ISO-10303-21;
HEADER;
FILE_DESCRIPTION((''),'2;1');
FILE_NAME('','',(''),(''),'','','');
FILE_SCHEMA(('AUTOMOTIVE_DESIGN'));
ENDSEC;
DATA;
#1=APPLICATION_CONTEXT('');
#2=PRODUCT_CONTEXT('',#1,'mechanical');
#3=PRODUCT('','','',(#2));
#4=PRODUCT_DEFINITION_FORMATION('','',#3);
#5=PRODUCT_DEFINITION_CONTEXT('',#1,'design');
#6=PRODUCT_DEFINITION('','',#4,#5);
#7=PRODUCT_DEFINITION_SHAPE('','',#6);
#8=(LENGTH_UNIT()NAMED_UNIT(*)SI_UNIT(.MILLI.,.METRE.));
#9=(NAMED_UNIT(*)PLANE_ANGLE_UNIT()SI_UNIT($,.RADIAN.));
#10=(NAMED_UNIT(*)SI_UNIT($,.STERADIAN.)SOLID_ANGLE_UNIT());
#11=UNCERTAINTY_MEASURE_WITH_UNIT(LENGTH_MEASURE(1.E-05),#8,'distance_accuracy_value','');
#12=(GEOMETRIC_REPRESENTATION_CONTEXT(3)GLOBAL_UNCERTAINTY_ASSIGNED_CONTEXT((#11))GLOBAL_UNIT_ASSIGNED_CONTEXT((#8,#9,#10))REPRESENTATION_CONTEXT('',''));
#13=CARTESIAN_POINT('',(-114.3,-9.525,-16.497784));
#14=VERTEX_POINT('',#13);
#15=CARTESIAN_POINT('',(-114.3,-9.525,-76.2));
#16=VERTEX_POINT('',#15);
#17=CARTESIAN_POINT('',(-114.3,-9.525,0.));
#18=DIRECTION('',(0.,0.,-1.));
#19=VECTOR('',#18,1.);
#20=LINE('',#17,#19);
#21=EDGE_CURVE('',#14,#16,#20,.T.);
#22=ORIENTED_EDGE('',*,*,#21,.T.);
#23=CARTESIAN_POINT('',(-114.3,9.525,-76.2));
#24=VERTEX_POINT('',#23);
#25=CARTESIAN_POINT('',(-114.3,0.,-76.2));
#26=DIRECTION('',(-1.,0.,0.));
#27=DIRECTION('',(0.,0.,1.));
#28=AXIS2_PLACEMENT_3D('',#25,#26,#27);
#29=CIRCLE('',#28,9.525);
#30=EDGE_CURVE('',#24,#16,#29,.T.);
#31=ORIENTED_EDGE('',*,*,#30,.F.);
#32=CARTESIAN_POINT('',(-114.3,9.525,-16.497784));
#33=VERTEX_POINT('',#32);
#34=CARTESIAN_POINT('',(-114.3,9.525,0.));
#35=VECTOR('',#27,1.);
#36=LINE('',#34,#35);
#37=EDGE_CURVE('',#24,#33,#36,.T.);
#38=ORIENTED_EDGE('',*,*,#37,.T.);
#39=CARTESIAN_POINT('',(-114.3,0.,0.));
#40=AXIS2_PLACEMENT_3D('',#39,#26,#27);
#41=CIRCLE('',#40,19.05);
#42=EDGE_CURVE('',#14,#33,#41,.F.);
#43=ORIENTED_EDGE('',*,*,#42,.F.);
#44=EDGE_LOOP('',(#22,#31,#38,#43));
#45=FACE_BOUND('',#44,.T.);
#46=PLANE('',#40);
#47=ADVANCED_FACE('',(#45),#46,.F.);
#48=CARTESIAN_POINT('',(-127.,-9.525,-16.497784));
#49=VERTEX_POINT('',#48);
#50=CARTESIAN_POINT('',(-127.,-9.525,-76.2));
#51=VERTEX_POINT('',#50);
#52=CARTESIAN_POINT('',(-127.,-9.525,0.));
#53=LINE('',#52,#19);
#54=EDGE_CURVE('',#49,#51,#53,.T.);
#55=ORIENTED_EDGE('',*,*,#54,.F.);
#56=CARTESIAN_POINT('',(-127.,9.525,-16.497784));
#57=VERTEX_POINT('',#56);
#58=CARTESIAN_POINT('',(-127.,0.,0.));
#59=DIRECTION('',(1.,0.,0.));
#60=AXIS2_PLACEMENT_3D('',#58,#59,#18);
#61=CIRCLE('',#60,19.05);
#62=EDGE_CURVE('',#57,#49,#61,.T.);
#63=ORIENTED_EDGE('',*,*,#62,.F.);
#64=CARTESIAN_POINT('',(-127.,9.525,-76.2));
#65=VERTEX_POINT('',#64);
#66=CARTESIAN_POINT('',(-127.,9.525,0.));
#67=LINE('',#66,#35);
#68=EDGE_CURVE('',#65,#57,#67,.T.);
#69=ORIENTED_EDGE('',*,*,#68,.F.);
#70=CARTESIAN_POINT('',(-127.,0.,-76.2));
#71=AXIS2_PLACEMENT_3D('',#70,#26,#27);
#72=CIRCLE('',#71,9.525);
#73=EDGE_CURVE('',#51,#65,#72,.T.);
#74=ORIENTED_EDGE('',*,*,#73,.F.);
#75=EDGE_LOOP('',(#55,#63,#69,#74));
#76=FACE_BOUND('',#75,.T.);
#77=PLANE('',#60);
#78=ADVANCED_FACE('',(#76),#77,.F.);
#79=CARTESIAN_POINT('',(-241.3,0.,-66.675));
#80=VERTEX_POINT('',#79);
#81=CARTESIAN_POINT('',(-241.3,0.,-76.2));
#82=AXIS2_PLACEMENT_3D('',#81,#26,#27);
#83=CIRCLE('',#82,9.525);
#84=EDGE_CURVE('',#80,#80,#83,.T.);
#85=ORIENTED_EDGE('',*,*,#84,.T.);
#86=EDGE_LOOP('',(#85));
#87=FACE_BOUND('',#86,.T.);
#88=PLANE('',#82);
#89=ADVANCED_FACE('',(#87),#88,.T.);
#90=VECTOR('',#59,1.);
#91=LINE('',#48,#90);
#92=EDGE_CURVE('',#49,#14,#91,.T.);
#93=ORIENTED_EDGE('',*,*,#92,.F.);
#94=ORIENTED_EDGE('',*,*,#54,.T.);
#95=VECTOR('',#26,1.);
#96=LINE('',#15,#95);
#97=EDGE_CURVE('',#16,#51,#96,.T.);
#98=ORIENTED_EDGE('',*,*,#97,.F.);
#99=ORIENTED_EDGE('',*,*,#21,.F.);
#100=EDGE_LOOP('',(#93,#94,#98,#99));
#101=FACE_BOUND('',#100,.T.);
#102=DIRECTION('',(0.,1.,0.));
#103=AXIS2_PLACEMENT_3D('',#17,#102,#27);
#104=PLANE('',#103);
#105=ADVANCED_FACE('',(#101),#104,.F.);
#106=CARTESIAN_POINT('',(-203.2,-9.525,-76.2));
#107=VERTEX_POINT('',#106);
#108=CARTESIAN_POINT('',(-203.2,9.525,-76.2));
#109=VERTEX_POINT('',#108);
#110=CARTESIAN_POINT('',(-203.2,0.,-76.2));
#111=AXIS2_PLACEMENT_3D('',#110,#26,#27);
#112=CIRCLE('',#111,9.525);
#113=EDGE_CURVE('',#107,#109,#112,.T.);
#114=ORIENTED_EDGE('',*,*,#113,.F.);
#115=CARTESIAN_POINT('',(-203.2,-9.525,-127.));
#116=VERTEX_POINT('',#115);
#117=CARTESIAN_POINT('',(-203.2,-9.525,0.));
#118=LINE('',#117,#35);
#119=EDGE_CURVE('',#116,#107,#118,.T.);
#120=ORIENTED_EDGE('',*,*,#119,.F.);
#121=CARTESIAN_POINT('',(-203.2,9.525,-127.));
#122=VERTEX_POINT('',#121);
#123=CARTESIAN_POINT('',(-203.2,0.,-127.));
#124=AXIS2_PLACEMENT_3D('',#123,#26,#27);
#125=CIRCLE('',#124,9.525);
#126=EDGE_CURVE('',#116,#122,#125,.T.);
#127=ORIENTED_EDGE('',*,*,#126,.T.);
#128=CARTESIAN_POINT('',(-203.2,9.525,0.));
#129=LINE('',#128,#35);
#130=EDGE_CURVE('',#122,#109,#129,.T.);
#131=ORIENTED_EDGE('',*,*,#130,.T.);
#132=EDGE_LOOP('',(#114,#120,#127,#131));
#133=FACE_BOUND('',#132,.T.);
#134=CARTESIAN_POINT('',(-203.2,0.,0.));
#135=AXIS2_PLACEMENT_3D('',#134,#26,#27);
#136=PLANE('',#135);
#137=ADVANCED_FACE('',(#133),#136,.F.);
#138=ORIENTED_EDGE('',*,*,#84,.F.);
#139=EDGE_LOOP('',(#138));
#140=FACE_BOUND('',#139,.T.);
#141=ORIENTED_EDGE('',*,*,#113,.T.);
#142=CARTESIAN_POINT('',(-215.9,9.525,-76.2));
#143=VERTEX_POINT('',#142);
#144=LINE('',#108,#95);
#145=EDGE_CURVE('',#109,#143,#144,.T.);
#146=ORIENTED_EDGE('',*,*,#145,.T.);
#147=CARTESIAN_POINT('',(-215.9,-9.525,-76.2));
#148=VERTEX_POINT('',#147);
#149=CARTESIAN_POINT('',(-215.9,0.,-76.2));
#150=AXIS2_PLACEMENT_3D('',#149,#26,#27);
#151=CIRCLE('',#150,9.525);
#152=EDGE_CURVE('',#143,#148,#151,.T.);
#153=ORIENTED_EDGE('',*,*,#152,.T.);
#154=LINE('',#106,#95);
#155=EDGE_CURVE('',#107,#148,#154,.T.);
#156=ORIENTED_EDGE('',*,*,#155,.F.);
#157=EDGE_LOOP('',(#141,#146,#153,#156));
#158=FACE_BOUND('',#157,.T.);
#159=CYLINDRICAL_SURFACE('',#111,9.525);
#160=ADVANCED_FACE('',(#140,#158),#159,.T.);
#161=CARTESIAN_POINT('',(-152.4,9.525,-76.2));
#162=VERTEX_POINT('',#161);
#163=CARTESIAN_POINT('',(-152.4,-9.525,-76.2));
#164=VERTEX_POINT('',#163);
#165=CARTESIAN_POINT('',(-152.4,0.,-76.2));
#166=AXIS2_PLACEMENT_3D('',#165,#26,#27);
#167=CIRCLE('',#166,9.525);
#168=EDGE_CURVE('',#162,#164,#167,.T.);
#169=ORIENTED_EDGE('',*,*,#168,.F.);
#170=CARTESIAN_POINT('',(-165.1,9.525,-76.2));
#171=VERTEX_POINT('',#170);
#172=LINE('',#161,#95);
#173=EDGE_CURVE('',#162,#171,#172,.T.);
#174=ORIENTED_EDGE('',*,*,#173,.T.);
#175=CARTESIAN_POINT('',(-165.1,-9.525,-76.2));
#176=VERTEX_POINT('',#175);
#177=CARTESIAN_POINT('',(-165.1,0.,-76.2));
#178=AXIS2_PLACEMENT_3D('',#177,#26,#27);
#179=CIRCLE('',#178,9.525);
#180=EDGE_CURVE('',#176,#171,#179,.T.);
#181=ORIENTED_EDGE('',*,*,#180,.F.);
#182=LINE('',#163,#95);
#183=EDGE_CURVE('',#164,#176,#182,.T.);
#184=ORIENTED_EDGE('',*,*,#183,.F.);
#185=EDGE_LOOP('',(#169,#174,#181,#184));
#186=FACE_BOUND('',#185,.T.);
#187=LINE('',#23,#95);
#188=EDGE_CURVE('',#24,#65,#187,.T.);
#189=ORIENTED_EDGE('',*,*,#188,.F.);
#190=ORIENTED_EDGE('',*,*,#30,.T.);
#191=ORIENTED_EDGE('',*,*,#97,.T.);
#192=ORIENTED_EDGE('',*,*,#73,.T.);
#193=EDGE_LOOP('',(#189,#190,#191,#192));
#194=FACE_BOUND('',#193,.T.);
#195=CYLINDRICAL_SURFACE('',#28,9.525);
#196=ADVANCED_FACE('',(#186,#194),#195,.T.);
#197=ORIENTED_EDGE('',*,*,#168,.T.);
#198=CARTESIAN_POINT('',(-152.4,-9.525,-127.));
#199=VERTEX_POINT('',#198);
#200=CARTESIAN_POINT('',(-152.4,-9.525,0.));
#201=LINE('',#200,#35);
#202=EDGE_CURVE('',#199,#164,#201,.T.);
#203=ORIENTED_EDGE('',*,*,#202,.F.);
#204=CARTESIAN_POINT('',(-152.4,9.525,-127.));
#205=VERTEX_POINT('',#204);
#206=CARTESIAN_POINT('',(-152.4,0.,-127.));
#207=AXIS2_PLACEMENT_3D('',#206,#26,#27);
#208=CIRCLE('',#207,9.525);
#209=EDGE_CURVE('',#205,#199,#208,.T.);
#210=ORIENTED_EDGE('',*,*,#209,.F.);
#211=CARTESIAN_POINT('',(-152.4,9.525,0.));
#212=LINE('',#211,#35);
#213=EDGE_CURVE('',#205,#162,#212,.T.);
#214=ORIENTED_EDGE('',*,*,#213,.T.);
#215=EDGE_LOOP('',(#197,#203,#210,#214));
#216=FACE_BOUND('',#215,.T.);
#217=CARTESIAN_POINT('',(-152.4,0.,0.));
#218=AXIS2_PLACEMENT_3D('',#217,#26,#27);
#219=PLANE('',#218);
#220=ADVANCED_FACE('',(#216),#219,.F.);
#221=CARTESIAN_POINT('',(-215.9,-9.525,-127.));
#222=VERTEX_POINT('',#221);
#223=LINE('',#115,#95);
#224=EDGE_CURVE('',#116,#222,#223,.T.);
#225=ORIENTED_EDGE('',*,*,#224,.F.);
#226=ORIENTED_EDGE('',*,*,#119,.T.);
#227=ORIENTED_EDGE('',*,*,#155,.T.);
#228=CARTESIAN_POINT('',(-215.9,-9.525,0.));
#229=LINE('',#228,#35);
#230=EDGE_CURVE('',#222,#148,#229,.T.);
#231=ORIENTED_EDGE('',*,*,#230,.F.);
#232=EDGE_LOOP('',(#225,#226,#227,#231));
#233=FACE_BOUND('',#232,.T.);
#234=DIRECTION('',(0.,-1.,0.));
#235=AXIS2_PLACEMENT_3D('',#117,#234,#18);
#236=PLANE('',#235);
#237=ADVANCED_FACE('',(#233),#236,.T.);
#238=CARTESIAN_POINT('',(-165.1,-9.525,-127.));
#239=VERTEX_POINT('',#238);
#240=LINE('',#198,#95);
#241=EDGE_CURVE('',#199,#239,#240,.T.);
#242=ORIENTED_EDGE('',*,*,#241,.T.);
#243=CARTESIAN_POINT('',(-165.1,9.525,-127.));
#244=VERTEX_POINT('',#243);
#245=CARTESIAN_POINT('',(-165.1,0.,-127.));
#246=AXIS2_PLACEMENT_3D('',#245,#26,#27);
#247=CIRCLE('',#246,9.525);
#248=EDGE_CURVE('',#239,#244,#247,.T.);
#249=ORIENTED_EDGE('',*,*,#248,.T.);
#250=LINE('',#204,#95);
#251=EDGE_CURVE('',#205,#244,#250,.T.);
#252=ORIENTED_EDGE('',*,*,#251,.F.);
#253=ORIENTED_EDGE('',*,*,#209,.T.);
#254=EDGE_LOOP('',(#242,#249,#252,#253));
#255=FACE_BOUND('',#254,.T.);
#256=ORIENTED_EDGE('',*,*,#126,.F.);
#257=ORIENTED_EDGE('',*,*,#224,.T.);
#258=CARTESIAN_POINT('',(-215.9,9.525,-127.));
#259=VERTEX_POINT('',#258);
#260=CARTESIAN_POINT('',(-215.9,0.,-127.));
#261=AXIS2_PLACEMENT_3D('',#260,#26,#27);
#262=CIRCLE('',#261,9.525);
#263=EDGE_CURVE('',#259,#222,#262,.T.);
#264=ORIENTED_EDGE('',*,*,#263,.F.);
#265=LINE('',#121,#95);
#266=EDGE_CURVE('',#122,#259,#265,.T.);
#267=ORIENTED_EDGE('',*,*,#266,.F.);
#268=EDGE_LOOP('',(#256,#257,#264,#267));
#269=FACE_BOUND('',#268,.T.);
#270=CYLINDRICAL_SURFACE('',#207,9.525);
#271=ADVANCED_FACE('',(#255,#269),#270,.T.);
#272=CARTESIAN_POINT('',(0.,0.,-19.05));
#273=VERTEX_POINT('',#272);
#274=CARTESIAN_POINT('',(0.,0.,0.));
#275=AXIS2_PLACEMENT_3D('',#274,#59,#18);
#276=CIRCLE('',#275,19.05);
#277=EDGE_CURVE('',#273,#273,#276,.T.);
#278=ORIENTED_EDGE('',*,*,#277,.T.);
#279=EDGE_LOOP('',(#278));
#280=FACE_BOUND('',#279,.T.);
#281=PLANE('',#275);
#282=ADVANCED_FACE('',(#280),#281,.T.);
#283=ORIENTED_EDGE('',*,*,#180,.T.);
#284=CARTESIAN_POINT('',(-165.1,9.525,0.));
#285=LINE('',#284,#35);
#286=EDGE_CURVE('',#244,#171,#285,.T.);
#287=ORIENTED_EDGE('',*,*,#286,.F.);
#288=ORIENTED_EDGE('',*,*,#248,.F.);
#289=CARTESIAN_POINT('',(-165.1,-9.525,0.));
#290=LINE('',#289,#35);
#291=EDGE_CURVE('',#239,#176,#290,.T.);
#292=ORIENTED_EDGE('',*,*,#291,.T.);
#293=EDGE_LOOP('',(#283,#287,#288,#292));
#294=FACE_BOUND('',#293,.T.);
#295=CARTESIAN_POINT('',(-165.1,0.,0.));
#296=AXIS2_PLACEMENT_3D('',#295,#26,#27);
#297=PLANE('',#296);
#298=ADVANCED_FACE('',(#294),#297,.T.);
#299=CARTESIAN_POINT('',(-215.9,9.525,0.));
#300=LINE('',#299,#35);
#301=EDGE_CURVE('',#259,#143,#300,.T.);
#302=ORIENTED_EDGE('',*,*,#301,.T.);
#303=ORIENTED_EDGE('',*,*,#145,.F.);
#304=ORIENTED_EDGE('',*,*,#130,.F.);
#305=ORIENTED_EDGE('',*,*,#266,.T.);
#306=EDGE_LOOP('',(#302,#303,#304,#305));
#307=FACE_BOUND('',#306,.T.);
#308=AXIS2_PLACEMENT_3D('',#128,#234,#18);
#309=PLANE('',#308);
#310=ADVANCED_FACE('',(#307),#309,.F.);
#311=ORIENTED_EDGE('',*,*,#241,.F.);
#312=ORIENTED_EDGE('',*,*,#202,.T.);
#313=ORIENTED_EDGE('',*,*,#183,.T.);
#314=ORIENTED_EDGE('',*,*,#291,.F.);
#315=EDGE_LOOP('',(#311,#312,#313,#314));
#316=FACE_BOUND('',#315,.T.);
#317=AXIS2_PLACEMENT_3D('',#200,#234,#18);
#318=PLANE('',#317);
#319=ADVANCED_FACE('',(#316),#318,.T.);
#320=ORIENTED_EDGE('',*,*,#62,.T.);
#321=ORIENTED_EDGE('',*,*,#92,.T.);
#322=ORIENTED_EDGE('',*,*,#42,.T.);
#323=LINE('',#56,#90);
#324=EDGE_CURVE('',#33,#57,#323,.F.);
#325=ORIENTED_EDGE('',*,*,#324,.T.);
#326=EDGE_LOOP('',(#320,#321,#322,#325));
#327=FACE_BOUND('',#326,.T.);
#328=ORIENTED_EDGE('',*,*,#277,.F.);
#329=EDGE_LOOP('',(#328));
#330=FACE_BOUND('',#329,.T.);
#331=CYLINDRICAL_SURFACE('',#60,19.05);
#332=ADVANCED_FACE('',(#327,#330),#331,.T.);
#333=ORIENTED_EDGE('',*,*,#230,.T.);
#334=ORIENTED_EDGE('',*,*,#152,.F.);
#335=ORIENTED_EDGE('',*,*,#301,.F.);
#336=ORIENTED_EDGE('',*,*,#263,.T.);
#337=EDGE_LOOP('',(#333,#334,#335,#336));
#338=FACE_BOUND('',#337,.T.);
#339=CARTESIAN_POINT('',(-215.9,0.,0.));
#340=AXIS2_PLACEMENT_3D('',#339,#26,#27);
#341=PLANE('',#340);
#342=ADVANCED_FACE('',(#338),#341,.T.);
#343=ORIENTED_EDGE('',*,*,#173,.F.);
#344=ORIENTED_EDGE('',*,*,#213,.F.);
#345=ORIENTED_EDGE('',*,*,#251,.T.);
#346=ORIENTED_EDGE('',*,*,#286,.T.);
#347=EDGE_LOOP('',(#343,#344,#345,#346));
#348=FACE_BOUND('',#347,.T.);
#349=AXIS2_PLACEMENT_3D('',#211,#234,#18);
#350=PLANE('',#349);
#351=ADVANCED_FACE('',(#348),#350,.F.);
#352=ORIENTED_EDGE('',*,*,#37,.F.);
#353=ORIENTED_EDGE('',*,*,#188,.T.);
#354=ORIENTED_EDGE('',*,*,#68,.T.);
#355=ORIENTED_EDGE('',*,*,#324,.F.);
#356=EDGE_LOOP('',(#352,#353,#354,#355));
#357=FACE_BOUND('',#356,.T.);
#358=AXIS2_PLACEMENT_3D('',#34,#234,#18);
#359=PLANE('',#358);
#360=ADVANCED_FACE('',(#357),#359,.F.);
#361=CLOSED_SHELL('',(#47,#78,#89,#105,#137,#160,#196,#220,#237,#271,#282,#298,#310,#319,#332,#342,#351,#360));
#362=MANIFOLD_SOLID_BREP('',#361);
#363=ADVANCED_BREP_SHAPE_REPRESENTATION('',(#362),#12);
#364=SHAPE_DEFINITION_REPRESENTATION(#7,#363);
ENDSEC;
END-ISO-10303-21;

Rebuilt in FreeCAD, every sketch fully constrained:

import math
import FreeCAD as App
import Part
import Sketcher
from FreeCAD import Vector
Q = App.Units.Quantity

doc = App.newDocument("Part")
params = doc.addObject("Spreadsheet::Sheet", "Params")
for row, (alias, value) in enumerate([
    ("sketch1_diameter", "1.5 in"),
    ("pad1_length", "5 in"),
    ("sketch2_radius", "0.75 in"),
    ("sketch2_radius2", "0.375 in"),
    ("pad2_length", "0.5 in"),
    ("sketch3_diameter", "0.75 in"),
    ("pad3_length", "1.5 in"),
    ("sketch4_height", "2 in"),
    ("sketch4_radius", "0.375 in"),
    ("pad4_length", "0.5 in"),
    ("sketch5_diameter", "0.75 in"),
    ("pad5_length", "2 in"),
    ("sketch6_height", "2 in"),
    ("sketch6_radius", "0.375 in"),
    ("pad6_length", "0.5 in"),
    ("sketch7_diameter", "0.75 in"),
    ("pad7_length", "1 in"),
], start=1):
    params.set(f"A{row}", alias)
    params.set(f"B{row}", "=" + value)
    params.setAlias(f"B{row}", alias)

body = doc.addObject("PartDesign::Body", "Body")

# Sketch on YZ plane
sketch1 = body.newObject("Sketcher::SketchObject", "Sketch")
sketch1.AttachmentSupport = (doc.getObject("YZ_Plane"), [""])
sketch1.MapMode = "FlatFace"
sketch1.addGeometry(Part.Circle(Vector(0, 0, 0), Vector(0, 0, 1), 19), False)
sketch1.addConstraint(Sketcher.Constraint("Coincident", 0, 3, -1, 1))
sketch1.addConstraint(Sketcher.Constraint("Diameter", 0, Q("1.5 in")))
sketch1.setExpression("Constraints[1]", "Params.sketch1_diameter")
pad1 = body.newObject("PartDesign::Pad", "Pad")
pad1.Profile = sketch1
pad1.setExpression("Length", "Params.pad1_length")
pad1.Reversed = True

# Sketch on YZ plane
sketch2 = body.newObject("Sketcher::SketchObject", "Sketch001")
sketch2.AttachmentSupport = (doc.getObject("YZ_Plane"), [""])
sketch2.MapMode = "FlatFace"
sketch2.AttachmentOffset = App.Placement(Vector(0, 0, -4.5 * 25.4), App.Rotation())
sketch2.addGeometry(Part.LineSegment(Vector(10, -16, 0), Vector(10, -76, 0)), False)
sketch2.addGeometry(Part.ArcOfCircle(Part.Circle(Vector(0, -76, 0), Vector(0, 0, 1), 10), math.radians(180), math.radians(360)), False)
sketch2.addGeometry(Part.LineSegment(Vector(-10, -76, 0), Vector(-10, -16, 0)), False)
sketch2.addGeometry(Part.ArcOfCircle(Part.Circle(Vector(0, 0, 0), Vector(0, 0, 1), 19), math.radians(-60), math.radians(240)), False)
sketch2.addConstraint(Sketcher.Constraint("Tangent", 0, 2, 1, 2))
sketch2.addConstraint(Sketcher.Constraint("Tangent", 1, 1, 2, 1))
sketch2.addConstraint(Sketcher.Constraint("Coincident", 2, 2, 3, 2))
sketch2.addConstraint(Sketcher.Constraint("Coincident", 3, 1, 0, 1))
sketch2.addConstraint(Sketcher.Constraint("Vertical", 0))
sketch2.addConstraint(Sketcher.Constraint("Vertical", 2))
sketch2.addConstraint(Sketcher.Constraint("Coincident", 3, 3, -1, 1))
sketch2.addConstraint(Sketcher.Constraint("PointOnObject", 1, 3, -2))
sketch2.addConstraint(Sketcher.Constraint("Radius", 3, Q("0.75 in")))
sketch2.addConstraint(Sketcher.Constraint("DistanceY", 1, 3, -1, 1, Q("3 in")))
sketch2.addConstraint(Sketcher.Constraint("Radius", 1, Q("0.375 in")))
sketch2.setExpression("Constraints[8]", "Params.sketch2_radius")
sketch2.setExpression("Constraints[10]", "Params.sketch2_radius2")
pad2 = body.newObject("PartDesign::Pad", "Pad001")
pad2.Profile = sketch2
pad2.setExpression("Length", "Params.pad2_length")
pad2.Reversed = True

# Sketch on YZ plane
sketch3 = body.newObject("Sketcher::SketchObject", "Sketch002")
sketch3.AttachmentSupport = (doc.getObject("YZ_Plane"), [""])
sketch3.MapMode = "FlatFace"
sketch3.AttachmentOffset = App.Placement(Vector(0, 0, -5 * 25.4), App.Rotation())
sketch3.addGeometry(Part.Circle(Vector(0, -76, 0), Vector(0, 0, 1), 10), False)
sketch3.addConstraint(Sketcher.Constraint("PointOnObject", 0, 3, -2))
sketch3.addConstraint(Sketcher.Constraint("Diameter", 0, Q("0.75 in")))
sketch3.addConstraint(Sketcher.Constraint("DistanceY", 0, 3, -1, 1, Q("3 in")))
sketch3.setExpression("Constraints[1]", "Params.sketch3_diameter")
pad3 = body.newObject("PartDesign::Pad", "Pad002")
pad3.Profile = sketch3
pad3.setExpression("Length", "Params.pad3_length")
pad3.Reversed = True

# Sketch on YZ plane
sketch4 = body.newObject("Sketcher::SketchObject", "Sketch003")
sketch4.AttachmentSupport = (doc.getObject("YZ_Plane"), [""])
sketch4.MapMode = "FlatFace"
sketch4.AttachmentOffset = App.Placement(Vector(0, 0, -6 * 25.4), App.Rotation())
sketch4.addGeometry(Part.LineSegment(Vector(10, -76, 0), Vector(10, -127, 0)), False)
sketch4.addGeometry(Part.ArcOfCircle(Part.Circle(Vector(0, -127, 0), Vector(0, 0, 1), 10), math.radians(180), math.radians(360)), False)
sketch4.addGeometry(Part.LineSegment(Vector(-10, -127, 0), Vector(-10, -76, 0)), False)
sketch4.addGeometry(Part.ArcOfCircle(Part.Circle(Vector(0, -76, 0), Vector(0, 0, 1), 10), math.radians(180), math.radians(360)), False)
sketch4.addConstraint(Sketcher.Constraint("Tangent", 0, 2, 1, 2))
sketch4.addConstraint(Sketcher.Constraint("Tangent", 1, 1, 2, 1))
sketch4.addConstraint(Sketcher.Constraint("Tangent", 2, 2, 3, 1))
sketch4.addConstraint(Sketcher.Constraint("Tangent", 3, 2, 0, 1))
sketch4.addConstraint(Sketcher.Constraint("Vertical", 0))
sketch4.addConstraint(Sketcher.Constraint("Vertical", 2))
sketch4.addConstraint(Sketcher.Constraint("PointOnObject", 1, 3, -2))
sketch4.addConstraint(Sketcher.Constraint("DistanceY", 0, 2, 0, 1, Q("2 in")))
sketch4.addConstraint(Sketcher.Constraint("DistanceY", 1, 3, -1, 1, Q("5 in")))
sketch4.addConstraint(Sketcher.Constraint("Radius", 1, Q("0.375 in")))
sketch4.setExpression("Constraints[7]", "Params.sketch4_height")
sketch4.setExpression("Constraints[9]", "Params.sketch4_radius")
pad4 = body.newObject("PartDesign::Pad", "Pad003")
pad4.Profile = sketch4
pad4.setExpression("Length", "Params.pad4_length")
pad4.Reversed = True

# Sketch on YZ plane
sketch5 = body.newObject("Sketcher::SketchObject", "Sketch004")
sketch5.AttachmentSupport = (doc.getObject("YZ_Plane"), [""])
sketch5.MapMode = "FlatFace"
sketch5.AttachmentOffset = App.Placement(Vector(0, 0, -6.5 * 25.4), App.Rotation())
sketch5.addGeometry(Part.Circle(Vector(0, -127, 0), Vector(0, 0, 1), 10), False)
sketch5.addConstraint(Sketcher.Constraint("PointOnObject", 0, 3, -2))
sketch5.addConstraint(Sketcher.Constraint("Diameter", 0, Q("0.75 in")))
sketch5.addConstraint(Sketcher.Constraint("DistanceY", 0, 3, -1, 1, Q("5 in")))
sketch5.setExpression("Constraints[1]", "Params.sketch5_diameter")
pad5 = body.newObject("PartDesign::Pad", "Pad004")
pad5.Profile = sketch5
pad5.setExpression("Length", "Params.pad5_length")
pad5.Reversed = True

# Sketch on YZ plane
sketch6 = body.newObject("Sketcher::SketchObject", "Sketch005")
sketch6.AttachmentSupport = (doc.getObject("YZ_Plane"), [""])
sketch6.MapMode = "FlatFace"
sketch6.AttachmentOffset = App.Placement(Vector(0, 0, -8 * 25.4), App.Rotation())
sketch6.addGeometry(Part.LineSegment(Vector(10, -76, 0), Vector(10, -127, 0)), False)
sketch6.addGeometry(Part.ArcOfCircle(Part.Circle(Vector(0, -127, 0), Vector(0, 0, 1), 10), math.radians(0), math.radians(180)), False)
sketch6.addGeometry(Part.LineSegment(Vector(-10, -127, 0), Vector(-10, -76, 0)), False)
sketch6.addGeometry(Part.ArcOfCircle(Part.Circle(Vector(0, -76, 0), Vector(0, 0, 1), 10), math.radians(0), math.radians(180)), False)
sketch6.addConstraint(Sketcher.Constraint("Tangent", 0, 2, 1, 1))
sketch6.addConstraint(Sketcher.Constraint("Tangent", 1, 2, 2, 1))
sketch6.addConstraint(Sketcher.Constraint("Tangent", 2, 2, 3, 2))
sketch6.addConstraint(Sketcher.Constraint("Tangent", 3, 1, 0, 1))
sketch6.addConstraint(Sketcher.Constraint("Vertical", 0))
sketch6.addConstraint(Sketcher.Constraint("Vertical", 2))
sketch6.addConstraint(Sketcher.Constraint("PointOnObject", 1, 3, -2))
sketch6.addConstraint(Sketcher.Constraint("DistanceY", 0, 2, 0, 1, Q("2 in")))
sketch6.addConstraint(Sketcher.Constraint("DistanceY", 1, 3, -1, 1, Q("5 in")))
sketch6.addConstraint(Sketcher.Constraint("Radius", 1, Q("0.375 in")))
sketch6.setExpression("Constraints[7]", "Params.sketch6_height")
sketch6.setExpression("Constraints[9]", "Params.sketch6_radius")
pad6 = body.newObject("PartDesign::Pad", "Pad005")
pad6.Profile = sketch6
pad6.setExpression("Length", "Params.pad6_length")
pad6.Reversed = True

# Sketch on YZ plane
sketch7 = body.newObject("Sketcher::SketchObject", "Sketch006")
sketch7.AttachmentSupport = (doc.getObject("YZ_Plane"), [""])
sketch7.MapMode = "FlatFace"
sketch7.AttachmentOffset = App.Placement(Vector(0, 0, -8.5 * 25.4), App.Rotation())
sketch7.addGeometry(Part.Circle(Vector(0, -76, 0), Vector(0, 0, 1), 10), False)
sketch7.addConstraint(Sketcher.Constraint("PointOnObject", 0, 3, -2))
sketch7.addConstraint(Sketcher.Constraint("Diameter", 0, Q("0.75 in")))
sketch7.addConstraint(Sketcher.Constraint("DistanceY", 0, 3, -1, 1, Q("3 in")))
sketch7.setExpression("Constraints[1]", "Params.sketch7_diameter")
pad7 = body.newObject("PartDesign::Pad", "Pad006")
pad7.Profile = sketch7
pad7.setExpression("Length", "Params.pad7_length")
pad7.Reversed = True

doc.recompute()
